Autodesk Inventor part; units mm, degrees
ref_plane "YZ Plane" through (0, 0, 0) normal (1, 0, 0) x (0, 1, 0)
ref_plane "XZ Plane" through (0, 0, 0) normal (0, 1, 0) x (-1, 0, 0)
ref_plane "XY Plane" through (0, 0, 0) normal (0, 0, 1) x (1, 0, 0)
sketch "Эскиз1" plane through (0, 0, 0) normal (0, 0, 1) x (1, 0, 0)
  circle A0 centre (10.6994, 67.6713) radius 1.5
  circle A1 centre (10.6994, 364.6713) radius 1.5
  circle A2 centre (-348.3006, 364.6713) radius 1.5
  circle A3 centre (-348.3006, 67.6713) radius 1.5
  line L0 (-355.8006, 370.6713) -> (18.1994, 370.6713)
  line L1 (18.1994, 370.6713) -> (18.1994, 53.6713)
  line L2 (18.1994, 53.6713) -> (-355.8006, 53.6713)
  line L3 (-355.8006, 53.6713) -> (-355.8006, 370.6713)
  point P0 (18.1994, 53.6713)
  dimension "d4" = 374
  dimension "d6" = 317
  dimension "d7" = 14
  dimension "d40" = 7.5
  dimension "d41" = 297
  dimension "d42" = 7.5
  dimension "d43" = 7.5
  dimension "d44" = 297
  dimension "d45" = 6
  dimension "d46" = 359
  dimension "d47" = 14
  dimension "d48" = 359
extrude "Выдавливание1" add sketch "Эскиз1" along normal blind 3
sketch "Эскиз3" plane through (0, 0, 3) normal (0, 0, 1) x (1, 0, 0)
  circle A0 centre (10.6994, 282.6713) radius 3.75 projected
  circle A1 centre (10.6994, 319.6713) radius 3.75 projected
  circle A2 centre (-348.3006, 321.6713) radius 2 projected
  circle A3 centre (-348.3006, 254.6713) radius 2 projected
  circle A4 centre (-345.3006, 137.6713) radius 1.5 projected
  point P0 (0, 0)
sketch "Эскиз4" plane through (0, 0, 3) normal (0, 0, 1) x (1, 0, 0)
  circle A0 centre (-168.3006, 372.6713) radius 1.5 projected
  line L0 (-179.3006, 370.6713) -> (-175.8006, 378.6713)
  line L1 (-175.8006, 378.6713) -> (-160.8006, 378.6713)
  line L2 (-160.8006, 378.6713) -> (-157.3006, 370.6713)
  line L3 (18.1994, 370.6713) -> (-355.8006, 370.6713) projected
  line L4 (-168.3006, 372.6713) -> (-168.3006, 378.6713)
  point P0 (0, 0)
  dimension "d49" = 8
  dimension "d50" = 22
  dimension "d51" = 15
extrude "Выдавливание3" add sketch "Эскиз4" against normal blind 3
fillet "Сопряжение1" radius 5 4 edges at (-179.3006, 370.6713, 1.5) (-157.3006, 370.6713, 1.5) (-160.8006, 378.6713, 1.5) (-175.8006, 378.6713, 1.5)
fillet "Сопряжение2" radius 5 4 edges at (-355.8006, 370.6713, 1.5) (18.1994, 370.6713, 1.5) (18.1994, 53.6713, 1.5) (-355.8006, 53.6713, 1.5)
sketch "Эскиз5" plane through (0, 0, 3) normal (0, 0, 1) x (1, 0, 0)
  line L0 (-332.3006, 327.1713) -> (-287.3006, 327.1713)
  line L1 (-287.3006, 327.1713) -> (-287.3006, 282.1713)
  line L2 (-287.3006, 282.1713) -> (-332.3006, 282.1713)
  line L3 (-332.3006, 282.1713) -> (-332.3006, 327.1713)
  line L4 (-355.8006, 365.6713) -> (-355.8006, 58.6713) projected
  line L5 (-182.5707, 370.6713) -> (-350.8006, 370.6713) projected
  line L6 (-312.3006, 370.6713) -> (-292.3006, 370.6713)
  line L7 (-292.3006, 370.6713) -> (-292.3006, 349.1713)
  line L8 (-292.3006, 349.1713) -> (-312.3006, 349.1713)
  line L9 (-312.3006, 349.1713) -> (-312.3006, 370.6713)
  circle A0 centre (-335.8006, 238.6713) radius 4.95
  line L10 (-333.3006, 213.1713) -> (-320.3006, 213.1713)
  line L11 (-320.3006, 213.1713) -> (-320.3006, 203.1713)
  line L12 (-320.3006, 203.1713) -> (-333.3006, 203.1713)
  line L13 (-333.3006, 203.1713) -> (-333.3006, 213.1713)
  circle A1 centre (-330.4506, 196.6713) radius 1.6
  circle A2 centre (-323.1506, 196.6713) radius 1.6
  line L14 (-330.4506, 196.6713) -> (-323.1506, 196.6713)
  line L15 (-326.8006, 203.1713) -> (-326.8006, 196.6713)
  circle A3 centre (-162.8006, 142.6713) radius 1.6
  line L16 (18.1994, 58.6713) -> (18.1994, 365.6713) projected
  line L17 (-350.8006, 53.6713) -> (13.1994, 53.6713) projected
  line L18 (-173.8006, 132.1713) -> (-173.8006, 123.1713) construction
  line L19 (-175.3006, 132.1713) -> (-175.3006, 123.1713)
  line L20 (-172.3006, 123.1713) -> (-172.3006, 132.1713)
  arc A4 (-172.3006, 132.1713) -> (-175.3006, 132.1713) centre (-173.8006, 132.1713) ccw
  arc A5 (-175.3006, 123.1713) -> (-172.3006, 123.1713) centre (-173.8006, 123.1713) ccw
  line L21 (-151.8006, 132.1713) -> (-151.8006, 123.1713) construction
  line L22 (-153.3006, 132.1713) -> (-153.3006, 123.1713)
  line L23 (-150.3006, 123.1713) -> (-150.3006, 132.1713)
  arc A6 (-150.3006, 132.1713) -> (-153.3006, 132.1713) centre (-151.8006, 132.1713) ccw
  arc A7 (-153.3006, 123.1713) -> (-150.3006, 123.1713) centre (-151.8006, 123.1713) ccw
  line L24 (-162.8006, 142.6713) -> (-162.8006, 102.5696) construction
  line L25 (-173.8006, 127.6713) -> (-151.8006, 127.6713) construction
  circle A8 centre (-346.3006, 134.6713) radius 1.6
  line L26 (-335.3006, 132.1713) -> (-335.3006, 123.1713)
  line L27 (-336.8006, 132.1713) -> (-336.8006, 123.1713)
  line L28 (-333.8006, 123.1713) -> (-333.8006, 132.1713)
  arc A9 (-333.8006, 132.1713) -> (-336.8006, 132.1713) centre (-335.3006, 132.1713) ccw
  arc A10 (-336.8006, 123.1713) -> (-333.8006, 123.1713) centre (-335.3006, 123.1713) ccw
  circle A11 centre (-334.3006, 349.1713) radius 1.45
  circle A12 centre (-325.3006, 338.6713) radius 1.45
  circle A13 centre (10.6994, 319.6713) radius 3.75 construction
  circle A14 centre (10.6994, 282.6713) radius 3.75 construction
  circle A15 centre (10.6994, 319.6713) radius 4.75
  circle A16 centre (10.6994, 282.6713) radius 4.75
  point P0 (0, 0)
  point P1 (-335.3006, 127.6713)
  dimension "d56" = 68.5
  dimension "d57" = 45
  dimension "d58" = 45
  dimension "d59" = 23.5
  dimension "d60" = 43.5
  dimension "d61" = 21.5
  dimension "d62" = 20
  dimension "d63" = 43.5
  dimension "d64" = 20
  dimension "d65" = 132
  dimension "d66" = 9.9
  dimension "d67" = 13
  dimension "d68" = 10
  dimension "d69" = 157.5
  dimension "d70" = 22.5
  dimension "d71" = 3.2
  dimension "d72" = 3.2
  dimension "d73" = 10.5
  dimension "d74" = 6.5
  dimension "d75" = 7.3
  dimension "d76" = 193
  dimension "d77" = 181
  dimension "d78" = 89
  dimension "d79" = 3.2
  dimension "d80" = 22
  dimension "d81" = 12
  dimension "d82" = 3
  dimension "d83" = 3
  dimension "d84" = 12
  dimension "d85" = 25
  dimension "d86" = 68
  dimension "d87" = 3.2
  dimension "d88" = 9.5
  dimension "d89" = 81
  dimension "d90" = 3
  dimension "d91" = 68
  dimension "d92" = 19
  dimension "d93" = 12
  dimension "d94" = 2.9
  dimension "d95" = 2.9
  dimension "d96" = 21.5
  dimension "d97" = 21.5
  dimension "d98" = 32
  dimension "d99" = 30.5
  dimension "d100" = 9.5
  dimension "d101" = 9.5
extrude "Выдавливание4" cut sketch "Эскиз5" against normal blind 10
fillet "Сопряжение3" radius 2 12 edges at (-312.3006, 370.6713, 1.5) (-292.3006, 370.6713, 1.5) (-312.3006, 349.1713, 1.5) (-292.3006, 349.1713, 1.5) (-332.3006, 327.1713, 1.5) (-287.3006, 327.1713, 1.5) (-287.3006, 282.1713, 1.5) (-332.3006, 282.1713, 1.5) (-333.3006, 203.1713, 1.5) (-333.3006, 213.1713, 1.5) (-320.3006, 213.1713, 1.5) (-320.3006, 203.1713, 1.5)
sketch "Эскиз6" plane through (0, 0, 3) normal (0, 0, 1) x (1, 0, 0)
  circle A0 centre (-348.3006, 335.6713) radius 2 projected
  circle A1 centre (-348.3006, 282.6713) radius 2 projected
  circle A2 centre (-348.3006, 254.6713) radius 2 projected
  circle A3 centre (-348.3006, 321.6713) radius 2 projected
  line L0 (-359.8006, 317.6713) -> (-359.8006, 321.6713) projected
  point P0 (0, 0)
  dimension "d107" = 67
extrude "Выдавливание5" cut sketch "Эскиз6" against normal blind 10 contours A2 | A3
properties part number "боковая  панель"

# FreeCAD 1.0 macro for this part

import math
import FreeCAD as App
import Part
import Sketcher

V = App.Vector


def edges_at(feature, points):
    """Names of the edges that pass closest to the given points."""
    edges = feature.Shape.Edges
    near = lambda p: min(range(len(edges)), key=lambda i: edges[i].distToShape(Part.Vertex(*p))[0])
    return sorted({f"Edge{near(p) + 1}" for p in points})

doc = App.newDocument("Part")
body = doc.addObject("PartDesign::Body", "Body")

# Sketch on XY plane
sketch1 = body.newObject("Sketcher::SketchObject", "Sketch")
sketch1.AttachmentSupport = (doc.getObject("XY_Plane"), [""])
sketch1.MapMode = "FlatFace"
sketch1.addGeometry(Part.LineSegment(V(18.2, 370.7, 0), V(-355.8, 370.7, 0)), False)
sketch1.addGeometry(Part.LineSegment(V(-355.8, 370.7, 0), V(-355.8, 53.7, 0)), False)
sketch1.addGeometry(Part.LineSegment(V(-355.8, 53.7, 0), V(18.2, 53.7, 0)), False)
sketch1.addGeometry(Part.LineSegment(V(18.2, 53.7, 0), V(18.2, 370.7, 0)), False)
sketch1.addGeometry(Part.Circle(V(-348.3, 67.7, 0), V(0, 0, 1), 1.5), False)
sketch1.addGeometry(Part.Circle(V(10.7, 67.7, 0), V(0, 0, 1), 1.5), False)
sketch1.addGeometry(Part.Circle(V(-348.3, 364.7, 0), V(0, 0, 1), 1.5), False)
sketch1.addGeometry(Part.Circle(V(10.7, 364.7, 0), V(0, 0, 1), 1.5), False)
sketch1.addConstraint(Sketcher.Constraint("Coincident", 0, 2, 1, 1))
sketch1.addConstraint(Sketcher.Constraint("Coincident", 1, 2, 2, 1))
sketch1.addConstraint(Sketcher.Constraint("Coincident", 2, 2, 3, 1))
sketch1.addConstraint(Sketcher.Constraint("Coincident", 3, 2, 0, 1))
sketch1.addConstraint(Sketcher.Constraint("Horizontal", 0))
sketch1.addConstraint(Sketcher.Constraint("Vertical", 1))
sketch1.addConstraint(Sketcher.Constraint("Horizontal", 2))
sketch1.addConstraint(Sketcher.Constraint("Vertical", 3))
sketch1.addConstraint(Sketcher.Constraint("Equal", 4, 5))
sketch1.addConstraint(Sketcher.Constraint("Equal", 5, 6))
sketch1.addConstraint(Sketcher.Constraint("Equal", 6, 7))
sketch1.addConstraint(Sketcher.Constraint("Horizontal", 4, 3, 5, 3))
sketch1.addConstraint(Sketcher.Constraint("Horizontal", 6, 3, 7, 3))
sketch1.addConstraint(Sketcher.Constraint("Vertical", 4, 3, 6, 3))
sketch1.addConstraint(Sketcher.Constraint("Vertical", 5, 3, 7, 3))
sketch1.addConstraint(Sketcher.Constraint("DistanceX", 0, 2, 0, 1, 374.0))
sketch1.addConstraint(Sketcher.Constraint("DistanceY", 1, 2, 1, 1, 317.0))
sketch1.addConstraint(Sketcher.Constraint("Diameter", 4, 3.0))
sketch1.addConstraint(Sketcher.Constraint("DistanceX", 4, 3, 5, 3, 359.0))
sketch1.addConstraint(Sketcher.Constraint("DistanceY", 4, 3, 6, 3, 297.0))
sketch1.addConstraint(Sketcher.Constraint("DistanceY", 6, 3, 0, 2, 6.0))
sketch1.addConstraint(Sketcher.Constraint("DistanceX", 0, 2, 6, 3, 7.5))
sketch1.addConstraint(Sketcher.Constraint("DistanceX", 4, 3, -1, 1, 348.3006))
sketch1.addConstraint(Sketcher.Constraint("DistanceY", -1, 1, 4, 3, 67.6713))
pad1 = body.newObject("PartDesign::Pad", "Pad")
pad1.Profile = sketch1
pad1.Length = 3

# Sketch on XY plane
sketch2 = body.newObject("Sketcher::SketchObject", "Sketch001")
sketch2.AttachmentSupport = (doc.getObject("XY_Plane"), [""])
sketch2.MapMode = "FlatFace"
sketch2.AttachmentOffset = App.Placement(V(0, 0, 3), App.Rotation())
sketch2.addGeometry(Part.LineSegment(V(-160.8, 378.7, 0), V(-168.3, 378.7, 0)), False)
sketch2.addGeometry(Part.LineSegment(V(-168.3, 378.7, 0), V(-175.8, 378.7, 0)), False)
sketch2.addGeometry(Part.LineSegment(V(-175.8, 378.7, 0), V(-179.3, 370.7, 0)), False)
sketch2.addGeometry(Part.LineSegment(V(-179.3, 370.7, 0), V(-157.3, 370.7, 0)), False)
sketch2.addGeometry(Part.LineSegment(V(-157.3, 370.7, 0), V(-160.8, 378.7, 0)), False)
sketch2.addGeometry(Part.Circle(V(-168.3, 372.7, 0), V(0, 0, 1), 1.5), False)
sketch2.addConstraint(Sketcher.Constraint("Coincident", 0, 2, 1, 1))
sketch2.addConstraint(Sketcher.Constraint("Coincident", 1, 2, 2, 1))
sketch2.addConstraint(Sketcher.Constraint("Coincident", 2, 2, 3, 1))
sketch2.addConstraint(Sketcher.Constraint("Coincident", 3, 2, 4, 1))
sketch2.addConstraint(Sketcher.Constraint("Coincident", 4, 2, 0, 1))
sketch2.addConstraint(Sketcher.Constraint("Horizontal", 0))
sketch2.addConstraint(Sketcher.Constraint("Horizontal", 1))
sketch2.addConstraint(Sketcher.Constraint("Horizontal", 3))
sketch2.addConstraint(Sketcher.Constraint("Vertical", 5, 3, 0, 2))
sketch2.addConstraint(Sketcher.Constraint("Equal", 0, 1))
sketch2.addConstraint(Sketcher.Constraint("Equal", 2, 4))
sketch2.addConstraint(Sketcher.Constraint("DistanceX", 3, 1, 3, 2, 22.0))
sketch2.addConstraint(Sketcher.Constraint("Diameter", 5, 3.0))
sketch2.addConstraint(Sketcher.Constraint("DistanceY", 2, 2, 1, 2, 8.0))
sketch2.addConstraint(Sketcher.Constraint("DistanceX", 1, 2, 4, 2, 15.0))
sketch2.addConstraint(Sketcher.Constraint("DistanceY", 5, 3, 0, 2, 6.0))
sketch2.addConstraint(Sketcher.Constraint("DistanceX", 5, 3, -1, 1, 168.3006))
sketch2.addConstraint(Sketcher.Constraint("DistanceY", -1, 1, 5, 3, 372.6713))
pad2 = body.newObject("PartDesign::Pad", "Pad001")
pad2.Profile = sketch2
pad2.Length = 3
pad2.Reversed = True
doc.recompute()

fillet = body.newObject("PartDesign::Fillet", "Fillet")
fillet.Base = (pad2, edges_at(pad2, [
    (-179.301, 370.671, 1.5),
    (-157.301, 370.671, 1.5),
    (-160.801, 378.671, 1.5),
    (-175.801, 378.671, 1.5),
]))
fillet.Radius = 5
doc.recompute()

fillet2 = body.newObject("PartDesign::Fillet", "Fillet001")
fillet2.Base = (fillet, edges_at(fillet, [
    (-355.801, 370.671, 1.5),
    (18.199, 370.671, 1.5),
    (18.199, 53.671, 1.5),
    (-355.801, 53.671, 1.5),
]))
fillet2.Radius = 5

# Sketch on XY plane
sketch3 = body.newObject("Sketcher::SketchObject", "Sketch002")
sketch3.AttachmentSupport = (doc.getObject("XY_Plane"), [""])
sketch3.MapMode = "FlatFace"
sketch3.AttachmentOffset = App.Placement(V(0, 0, 3), App.Rotation())
sketch3.addGeometry(Part.LineSegment(V(-287.3, 327.2, 0), V(-332.3, 327.2, 0)), False)
sketch3.addGeometry(Part.LineSegment(V(-332.3, 327.2, 0), V(-332.3, 282.2, 0)), False)
sketch3.addGeometry(Part.LineSegment(V(-332.3, 282.2, 0), V(-287.3, 282.2, 0)), False)
sketch3.addGeometry(Part.LineSegment(V(-287.3, 282.2, 0), V(-287.3, 327.2, 0)), False)
sketch3.addGeometry(Part.LineSegment(V(-292.3, 349.2, 0), V(-292.3, 370.7, 0)), False)
sketch3.addGeometry(Part.LineSegment(V(-292.3, 370.7, 0), V(-312.3, 370.7, 0)), False)
sketch3.addGeometry(Part.LineSegment(V(-312.3, 370.7, 0), V(-312.3, 349.2, 0)), False)
sketch3.addGeometry(Part.LineSegment(V(-312.3, 349.2, 0), V(-292.3, 349.2, 0)), False)
sketch3.addGeometry(Part.Circle(V(-335.8, 238.7, 0), V(0, 0, 1), 5), False)
sketch3.addGeometry(Part.Circle(V(-323.2, 196.7, 0), V(0, 0, 1), 1.6), False)
sketch3.addGeometry(Part.Circle(V(-330.5, 196.7, 0), V(0, 0, 1), 1.6), False)
sketch3.addGeometry(Part.LineSegment(V(-320.3, 213.2, 0), V(-333.3, 213.2, 0)), False)
sketch3.addGeometry(Part.LineSegment(V(-333.3, 213.2, 0), V(-333.3, 203.2, 0)), False)
sketch3.addGeometry(Part.LineSegment(V(-333.3, 203.2, 0), V(-320.3, 203.2, 0)), False)
sketch3.addGeometry(Part.LineSegment(V(-320.3, 203.2, 0), V(-320.3, 213.2, 0)), False)
sketch3.addGeometry(Part.Circle(V(-162.8, 142.7, 0), V(0, 0, 1), 1.6), False)
sketch3.addGeometry(Part.ArcOfCircle(Part.Circle(V(-173.8, 132.2, 0), V(0, 0, 1), 1.5), math.radians(0), math.radians(180)), False)
sketch3.addGeometry(Part.LineSegment(V(-175.3, 132.2, 0), V(-175.3, 123.2, 0)), False)
sketch3.addGeometry(Part.ArcOfCircle(Part.Circle(V(-173.8, 123.2, 0), V(0, 0, 1), 1.5), math.radians(180), math.radians(360)), False)
sketch3.addGeometry(Part.LineSegment(V(-172.3, 123.2, 0), V(-172.3, 132.2, 0)), False)
sketch3.addGeometry(Part.ArcOfCircle(Part.Circle(V(-151.8, 132.2, 0), V(0, 0, 1), 1.5), math.radians(0), math.radians(180)), False)
sketch3.addGeometry(Part.LineSegment(V(-153.3, 132.2, 0), V(-153.3, 123.2, 0)), False)
sketch3.addGeometry(Part.ArcOfCircle(Part.Circle(V(-151.8, 123.2, 0), V(0, 0, 1), 1.5), math.radians(180), math.radians(360)), False)
sketch3.addGeometry(Part.LineSegment(V(-150.3, 123.2, 0), V(-150.3, 132.2, 0)), False)
sketch3.addGeometry(Part.Circle(V(-346.3, 134.7, 0), V(0, 0, 1), 1.6), False)
sketch3.addGeometry(Part.ArcOfCircle(Part.Circle(V(-335.3, 132.2, 0), V(0, 0, 1), 1.5), math.radians(0), math.radians(180)), False)
sketch3.addGeometry(Part.LineSegment(V(-336.8, 132.2, 0), V(-336.8, 123.2, 0)), False)
sketch3.addGeometry(Part.ArcOfCircle(Part.Circle(V(-335.3, 123.2, 0), V(0, 0, 1), 1.5), math.radians(180), math.radians(360)), False)
sketch3.addGeometry(Part.LineSegment(V(-333.8, 123.2, 0), V(-333.8, 132.2, 0)), False)
sketch3.addGeometry(Part.Circle(V(-334.3, 349.2, 0), V(0, 0, 1), 1.4), False)
sketch3.addGeometry(Part.Circle(V(-325.3, 338.7, 0), V(0, 0, 1), 1.4), False)
sketch3.addGeometry(Part.Circle(V(10.7, 319.7, 0), V(0, 0, 1), 4.8), False)
sketch3.addGeometry(Part.Circle(V(10.7, 282.7, 0), V(0, 0, 1), 4.8), False)
sketch3.addConstraint(Sketcher.Constraint("Coincident", 0, 2, 1, 1))
sketch3.addConstraint(Sketcher.Constraint("Coincident", 1, 2, 2, 1))
sketch3.addConstraint(Sketcher.Constraint("Coincident", 2, 2, 3, 1))
sketch3.addConstraint(Sketcher.Constraint("Coincident", 3, 2, 0, 1))
sketch3.addConstraint(Sketcher.Constraint("Coincident", 4, 2, 5, 1))
sketch3.addConstraint(Sketcher.Constraint("Coincident", 5, 2, 6, 1))
sketch3.addConstraint(Sketcher.Constraint("Coincident", 6, 2, 7, 1))
sketch3.addConstraint(Sketcher.Constraint("Coincident", 7, 2, 4, 1))
sketch3.addConstraint(Sketcher.Constraint("Coincident", 11, 2, 12, 1))
sketch3.addConstraint(Sketcher.Constraint("Coincident", 12, 2, 13, 1))
sketch3.addConstraint(Sketcher.Constraint("Coincident", 13, 2, 14, 1))
sketch3.addConstraint(Sketcher.Constraint("Coincident", 14, 2, 11, 1))
sketch3.addConstraint(Sketcher.Constraint("Tangent", 16, 2, 17, 1))
sketch3.addConstraint(Sketcher.Constraint("Tangent", 17, 2, 18, 1))
sketch3.addConstraint(Sketcher.Constraint("Tangent", 18, 2, 19, 1))
sketch3.addConstraint(Sketcher.Constraint("Tangent", 19, 2, 16, 1))
sketch3.addConstraint(Sketcher.Constraint("Tangent", 20, 2, 21, 1))
sketch3.addConstraint(Sketcher.Constraint("Tangent", 21, 2, 22, 1))
sketch3.addConstraint(Sketcher.Constraint("Tangent", 22, 2, 23, 1))
sketch3.addConstraint(Sketcher.Constraint("Tangent", 23, 2, 20, 1))
sketch3.addConstraint(Sketcher.Constraint("Tangent", 25, 2, 26, 1))
sketch3.addConstraint(Sketcher.Constraint("Tangent", 26, 2, 27, 1))
sketch3.addConstraint(Sketcher.Constraint("Tangent", 27, 2, 28, 1))
sketch3.addConstraint(Sketcher.Constraint("Tangent", 28, 2, 25, 1))
sketch3.addConstraint(Sketcher.Constraint("Horizontal", 0))
sketch3.addConstraint(Sketcher.Constraint("Vertical", 1))
sketch3.addConstraint(Sketcher.Constraint("Horizontal", 2))
sketch3.addConstraint(Sketcher.Constraint("Vertical", 3))
sketch3.addConstraint(Sketcher.Constraint("Vertical", 4))
sketch3.addConstraint(Sketcher.Constraint("Horizontal", 5))
sketch3.addConstraint(Sketcher.Constraint("Vertical", 6))
sketch3.addConstraint(Sketcher.Constraint("Horizontal", 7))
sketch3.addConstraint(Sketcher.Constraint("Horizontal", 11))
sketch3.addConstraint(Sketcher.Constraint("Vertical", 12))
sketch3.addConstraint(Sketcher.Constraint("Horizontal", 13))
sketch3.addConstraint(Sketcher.Constraint("Vertical", 14))
sketch3.addConstraint(Sketcher.Constraint("Vertical", 17))
sketch3.addConstraint(Sketcher.Constraint("Vertical", 19))
sketch3.addConstraint(Sketcher.Constraint("Vertical", 21))
sketch3.addConstraint(Sketcher.Constraint("Vertical", 23))
sketch3.addConstraint(Sketcher.Constraint("Vertical", 26))
sketch3.addConstraint(Sketcher.Constraint("Vertical", 28))
sketch3.addConstraint(Sketcher.Constraint("Equal", 9, 10))
sketch3.addConstraint(Sketcher.Constraint("Equal", 10, 15))
sketch3.addConstraint(Sketcher.Constraint("Equal", 18, 20))
sketch3.addConstraint(Sketcher.Constraint("Equal", 15, 24))
sketch3.addConstraint(Sketcher.Constraint("Equal", 22, 25))
sketch3.addConstraint(Sketcher.Constraint("Equal", 29, 30))
sketch3.addConstraint(Sketcher.Constraint("Equal", 31, 32))
sketch3.addConstraint(Sketcher.Constraint("Horizontal", 9, 3, 10, 3))
sketch3.addConstraint(Sketcher.Constraint("Horizontal", 16, 3, 20, 3))
sketch3.addConstraint(Sketcher.Constraint("Horizontal", 18, 3, 22, 3))
sketch3.addConstraint(Sketcher.Constraint("Horizontal", 20, 3, 25, 3))
sketch3.addConstraint(Sketcher.Constraint("Horizontal", 22, 3, 27, 3))
sketch3.addConstraint(Sketcher.Constraint("Horizontal", 29, 3, 6, 2))
sketch3.addConstraint(Sketcher.Constraint("Vertical", 31, 3, 32, 3))
sketch3.addConstraint(Sketcher.Constraint("Equal", 2, 1))
sketch3.addConstraint(Sketcher.Constraint("Diameter", 8, 9.9))
sketch3.addConstraint(Sketcher.Constraint("Diameter", 9, 3.2))
sketch3.addConstraint(Sketcher.Constraint("Diameter", 29, 2.9))
sketch3.addConstraint(Sketcher.Constraint("Diameter", 31, 9.5))
sketch3.addConstraint(Sketcher.Constraint("Radius", 16, 1.5))
sketch3.addConstraint(Sketcher.Constraint("DistanceX", 0, 2, 0, 1, 45.0))
sketch3.addConstraint(Sketcher.Constraint("DistanceX", 5, 2, 5, 1, 20.0))
sketch3.addConstraint(Sketcher.Constraint("DistanceX", 11, 2, 11, 1, 13.0))
sketch3.addConstraint(Sketcher.Constraint("DistanceY", 12, 2, 12, 1, 10.0))
sketch3.addConstraint(Sketcher.Constraint("DistanceY", 4, 1, 4, 2, 21.5))
sketch3.addConstraint(Sketcher.Constraint("DistanceX", 16, 3, 20, 3, 22.0))
sketch3.addConstraint(Sketcher.Constraint("DistanceX", 24, 3, 29, 3, 12.0))
sketch3.addConstraint(Sketcher.Constraint("DistanceY", 0, 2, 29, 3, 22.0))
sketch3.addConstraint(Sketcher.Constraint("DistanceY", 30, 3, 4, 2, 32.0))
sketch3.addConstraint(Sketcher.Constraint("DistanceX", 29, 3, 5, 2, 22.0))
sketch3.addConstraint(Sketcher.Constraint("DistanceX", 30, 3, 5, 2, 13.0))
sketch3.addConstraint(Sketcher.Constraint("DistanceX", 0, 2, 5, 2, 20.0))
sketch3.addConstraint(Sketcher.Constraint("DistanceX", 24, 3, 11, 2, 13.0))
sketch3.addConstraint(Sketcher.Constraint("DistanceX", 10, 3, 9, 3, 7.3))
sketch3.addConstraint(Sketcher.Constraint("DistanceY", 16, 3, 15, 3, 10.5))
sketch3.addConstraint(Sketcher.Constraint("DistanceX", 24, 3, 8, 3, 10.5))
sketch3.addConstraint(Sketcher.Constraint("DistanceY", 8, 3, 1, 2, 43.5))
sketch3.addConstraint(Sketcher.Constraint("DistanceY", 10, 3, 12, 2, 6.5))
sketch3.addConstraint(Sketcher.Constraint("DistanceY", 24, 3, 12, 2, 68.5))
sketch3.addConstraint(Sketcher.Constraint("DistanceX", 15, 3, 20, 2, 9.5))
sketch3.addConstraint(Sketcher.Constraint("DistanceX", 24, 3, 25, 2, 9.5))
sketch3.addConstraint(Sketcher.Constraint("DistanceY", 17, 2, 17, 1, 9.0))
sketch3.addConstraint(Sketcher.Constraint("DistanceY", 9, 3, 8, 3, 42.0))
sketch3.addConstraint(Sketcher.Constraint("DistanceY", 15, 3, 9, 3, 54.0))
sketch3.addConstraint(Sketcher.Constraint("DistanceX", 8, 3, 15, 3, 173.0))
sketch3.addConstraint(Sketcher.Constraint("DistanceY", 15, 3, 31, 3, 177.0))
sketch3.addConstraint(Sketcher.Constraint("DistanceY", 32, 3, 31, 3, 37.0))
sketch3.addConstraint(Sketcher.Constraint("DistanceX", 15, 3, 31, 3, 173.5))
sketch3.addConstraint(Sketcher.Constraint("DistanceX", 8, 3, 9, 3, 12.65))
sketch3.addConstraint(Sketcher.Constraint("DistanceX", 8, 3, -1, 1, 335.8006))
sketch3.addConstraint(Sketcher.Constraint("DistanceY", -1, 1, 8, 3, 238.6713))
pocket1 = body.newObject("PartDesign::Pocket", "Pocket")
pocket1.Profile = sketch3
pocket1.Length = 10
doc.recompute()

fillet3 = body.newObject("PartDesign::Fillet", "Fillet002")
fillet3.Base = (pocket1, edges_at(pocket1, [
    (-312.301, 370.671, 1.5),
    (-292.301, 370.671, 1.5),
    (-312.301, 349.171, 1.5),
    (-292.301, 349.171, 1.5),
    (-332.301, 327.171, 1.5),
    (-287.301, 327.171, 1.5),
    (-287.301, 282.171, 1.5),
    (-332.301, 282.171, 1.5),
    (-333.301, 203.171, 1.5),
    (-333.301, 213.171, 1.5),
    (-320.301, 213.171, 1.5),
    (-320.301, 203.171, 1.5),
]))
fillet3.Radius = 2

# Sketch on XY plane
sketch4 = body.newObject("Sketcher::SketchObject", "Sketch003")
sketch4.AttachmentSupport = (doc.getObject("XY_Plane"), [""])
sketch4.MapMode = "FlatFace"
sketch4.AttachmentOffset = App.Placement(V(0, 0, 3), App.Rotation())
sketch4.addGeometry(Part.Circle(V(-348.3, 254.7, 0), V(0, 0, 1), 2), False)
sketch4.addGeometry(Part.Circle(V(-348.3, 321.7, 0), V(0, 0, 1), 2), False)
sketch4.addConstraint(Sketcher.Constraint("Equal", 0, 1))
sketch4.addConstraint(Sketcher.Constraint("Vertical", 0, 3, 1, 3))
sketch4.addConstraint(Sketcher.Constraint("Diameter", 0, 4.0))
sketch4.addConstraint(Sketcher.Constraint("DistanceY", 0, 3, 1, 3, 67.0))
sketch4.addConstraint(Sketcher.Constraint("DistanceX", 0, 3, -1, 1, 348.3006))
sketch4.addConstraint(Sketcher.Constraint("DistanceY", -1, 1, 0, 3, 254.6713))
pocket2 = body.newObject("PartDesign::Pocket", "Pocket001")
pocket2.Profile = sketch4
pocket2.Length = 10

doc.recompute()
